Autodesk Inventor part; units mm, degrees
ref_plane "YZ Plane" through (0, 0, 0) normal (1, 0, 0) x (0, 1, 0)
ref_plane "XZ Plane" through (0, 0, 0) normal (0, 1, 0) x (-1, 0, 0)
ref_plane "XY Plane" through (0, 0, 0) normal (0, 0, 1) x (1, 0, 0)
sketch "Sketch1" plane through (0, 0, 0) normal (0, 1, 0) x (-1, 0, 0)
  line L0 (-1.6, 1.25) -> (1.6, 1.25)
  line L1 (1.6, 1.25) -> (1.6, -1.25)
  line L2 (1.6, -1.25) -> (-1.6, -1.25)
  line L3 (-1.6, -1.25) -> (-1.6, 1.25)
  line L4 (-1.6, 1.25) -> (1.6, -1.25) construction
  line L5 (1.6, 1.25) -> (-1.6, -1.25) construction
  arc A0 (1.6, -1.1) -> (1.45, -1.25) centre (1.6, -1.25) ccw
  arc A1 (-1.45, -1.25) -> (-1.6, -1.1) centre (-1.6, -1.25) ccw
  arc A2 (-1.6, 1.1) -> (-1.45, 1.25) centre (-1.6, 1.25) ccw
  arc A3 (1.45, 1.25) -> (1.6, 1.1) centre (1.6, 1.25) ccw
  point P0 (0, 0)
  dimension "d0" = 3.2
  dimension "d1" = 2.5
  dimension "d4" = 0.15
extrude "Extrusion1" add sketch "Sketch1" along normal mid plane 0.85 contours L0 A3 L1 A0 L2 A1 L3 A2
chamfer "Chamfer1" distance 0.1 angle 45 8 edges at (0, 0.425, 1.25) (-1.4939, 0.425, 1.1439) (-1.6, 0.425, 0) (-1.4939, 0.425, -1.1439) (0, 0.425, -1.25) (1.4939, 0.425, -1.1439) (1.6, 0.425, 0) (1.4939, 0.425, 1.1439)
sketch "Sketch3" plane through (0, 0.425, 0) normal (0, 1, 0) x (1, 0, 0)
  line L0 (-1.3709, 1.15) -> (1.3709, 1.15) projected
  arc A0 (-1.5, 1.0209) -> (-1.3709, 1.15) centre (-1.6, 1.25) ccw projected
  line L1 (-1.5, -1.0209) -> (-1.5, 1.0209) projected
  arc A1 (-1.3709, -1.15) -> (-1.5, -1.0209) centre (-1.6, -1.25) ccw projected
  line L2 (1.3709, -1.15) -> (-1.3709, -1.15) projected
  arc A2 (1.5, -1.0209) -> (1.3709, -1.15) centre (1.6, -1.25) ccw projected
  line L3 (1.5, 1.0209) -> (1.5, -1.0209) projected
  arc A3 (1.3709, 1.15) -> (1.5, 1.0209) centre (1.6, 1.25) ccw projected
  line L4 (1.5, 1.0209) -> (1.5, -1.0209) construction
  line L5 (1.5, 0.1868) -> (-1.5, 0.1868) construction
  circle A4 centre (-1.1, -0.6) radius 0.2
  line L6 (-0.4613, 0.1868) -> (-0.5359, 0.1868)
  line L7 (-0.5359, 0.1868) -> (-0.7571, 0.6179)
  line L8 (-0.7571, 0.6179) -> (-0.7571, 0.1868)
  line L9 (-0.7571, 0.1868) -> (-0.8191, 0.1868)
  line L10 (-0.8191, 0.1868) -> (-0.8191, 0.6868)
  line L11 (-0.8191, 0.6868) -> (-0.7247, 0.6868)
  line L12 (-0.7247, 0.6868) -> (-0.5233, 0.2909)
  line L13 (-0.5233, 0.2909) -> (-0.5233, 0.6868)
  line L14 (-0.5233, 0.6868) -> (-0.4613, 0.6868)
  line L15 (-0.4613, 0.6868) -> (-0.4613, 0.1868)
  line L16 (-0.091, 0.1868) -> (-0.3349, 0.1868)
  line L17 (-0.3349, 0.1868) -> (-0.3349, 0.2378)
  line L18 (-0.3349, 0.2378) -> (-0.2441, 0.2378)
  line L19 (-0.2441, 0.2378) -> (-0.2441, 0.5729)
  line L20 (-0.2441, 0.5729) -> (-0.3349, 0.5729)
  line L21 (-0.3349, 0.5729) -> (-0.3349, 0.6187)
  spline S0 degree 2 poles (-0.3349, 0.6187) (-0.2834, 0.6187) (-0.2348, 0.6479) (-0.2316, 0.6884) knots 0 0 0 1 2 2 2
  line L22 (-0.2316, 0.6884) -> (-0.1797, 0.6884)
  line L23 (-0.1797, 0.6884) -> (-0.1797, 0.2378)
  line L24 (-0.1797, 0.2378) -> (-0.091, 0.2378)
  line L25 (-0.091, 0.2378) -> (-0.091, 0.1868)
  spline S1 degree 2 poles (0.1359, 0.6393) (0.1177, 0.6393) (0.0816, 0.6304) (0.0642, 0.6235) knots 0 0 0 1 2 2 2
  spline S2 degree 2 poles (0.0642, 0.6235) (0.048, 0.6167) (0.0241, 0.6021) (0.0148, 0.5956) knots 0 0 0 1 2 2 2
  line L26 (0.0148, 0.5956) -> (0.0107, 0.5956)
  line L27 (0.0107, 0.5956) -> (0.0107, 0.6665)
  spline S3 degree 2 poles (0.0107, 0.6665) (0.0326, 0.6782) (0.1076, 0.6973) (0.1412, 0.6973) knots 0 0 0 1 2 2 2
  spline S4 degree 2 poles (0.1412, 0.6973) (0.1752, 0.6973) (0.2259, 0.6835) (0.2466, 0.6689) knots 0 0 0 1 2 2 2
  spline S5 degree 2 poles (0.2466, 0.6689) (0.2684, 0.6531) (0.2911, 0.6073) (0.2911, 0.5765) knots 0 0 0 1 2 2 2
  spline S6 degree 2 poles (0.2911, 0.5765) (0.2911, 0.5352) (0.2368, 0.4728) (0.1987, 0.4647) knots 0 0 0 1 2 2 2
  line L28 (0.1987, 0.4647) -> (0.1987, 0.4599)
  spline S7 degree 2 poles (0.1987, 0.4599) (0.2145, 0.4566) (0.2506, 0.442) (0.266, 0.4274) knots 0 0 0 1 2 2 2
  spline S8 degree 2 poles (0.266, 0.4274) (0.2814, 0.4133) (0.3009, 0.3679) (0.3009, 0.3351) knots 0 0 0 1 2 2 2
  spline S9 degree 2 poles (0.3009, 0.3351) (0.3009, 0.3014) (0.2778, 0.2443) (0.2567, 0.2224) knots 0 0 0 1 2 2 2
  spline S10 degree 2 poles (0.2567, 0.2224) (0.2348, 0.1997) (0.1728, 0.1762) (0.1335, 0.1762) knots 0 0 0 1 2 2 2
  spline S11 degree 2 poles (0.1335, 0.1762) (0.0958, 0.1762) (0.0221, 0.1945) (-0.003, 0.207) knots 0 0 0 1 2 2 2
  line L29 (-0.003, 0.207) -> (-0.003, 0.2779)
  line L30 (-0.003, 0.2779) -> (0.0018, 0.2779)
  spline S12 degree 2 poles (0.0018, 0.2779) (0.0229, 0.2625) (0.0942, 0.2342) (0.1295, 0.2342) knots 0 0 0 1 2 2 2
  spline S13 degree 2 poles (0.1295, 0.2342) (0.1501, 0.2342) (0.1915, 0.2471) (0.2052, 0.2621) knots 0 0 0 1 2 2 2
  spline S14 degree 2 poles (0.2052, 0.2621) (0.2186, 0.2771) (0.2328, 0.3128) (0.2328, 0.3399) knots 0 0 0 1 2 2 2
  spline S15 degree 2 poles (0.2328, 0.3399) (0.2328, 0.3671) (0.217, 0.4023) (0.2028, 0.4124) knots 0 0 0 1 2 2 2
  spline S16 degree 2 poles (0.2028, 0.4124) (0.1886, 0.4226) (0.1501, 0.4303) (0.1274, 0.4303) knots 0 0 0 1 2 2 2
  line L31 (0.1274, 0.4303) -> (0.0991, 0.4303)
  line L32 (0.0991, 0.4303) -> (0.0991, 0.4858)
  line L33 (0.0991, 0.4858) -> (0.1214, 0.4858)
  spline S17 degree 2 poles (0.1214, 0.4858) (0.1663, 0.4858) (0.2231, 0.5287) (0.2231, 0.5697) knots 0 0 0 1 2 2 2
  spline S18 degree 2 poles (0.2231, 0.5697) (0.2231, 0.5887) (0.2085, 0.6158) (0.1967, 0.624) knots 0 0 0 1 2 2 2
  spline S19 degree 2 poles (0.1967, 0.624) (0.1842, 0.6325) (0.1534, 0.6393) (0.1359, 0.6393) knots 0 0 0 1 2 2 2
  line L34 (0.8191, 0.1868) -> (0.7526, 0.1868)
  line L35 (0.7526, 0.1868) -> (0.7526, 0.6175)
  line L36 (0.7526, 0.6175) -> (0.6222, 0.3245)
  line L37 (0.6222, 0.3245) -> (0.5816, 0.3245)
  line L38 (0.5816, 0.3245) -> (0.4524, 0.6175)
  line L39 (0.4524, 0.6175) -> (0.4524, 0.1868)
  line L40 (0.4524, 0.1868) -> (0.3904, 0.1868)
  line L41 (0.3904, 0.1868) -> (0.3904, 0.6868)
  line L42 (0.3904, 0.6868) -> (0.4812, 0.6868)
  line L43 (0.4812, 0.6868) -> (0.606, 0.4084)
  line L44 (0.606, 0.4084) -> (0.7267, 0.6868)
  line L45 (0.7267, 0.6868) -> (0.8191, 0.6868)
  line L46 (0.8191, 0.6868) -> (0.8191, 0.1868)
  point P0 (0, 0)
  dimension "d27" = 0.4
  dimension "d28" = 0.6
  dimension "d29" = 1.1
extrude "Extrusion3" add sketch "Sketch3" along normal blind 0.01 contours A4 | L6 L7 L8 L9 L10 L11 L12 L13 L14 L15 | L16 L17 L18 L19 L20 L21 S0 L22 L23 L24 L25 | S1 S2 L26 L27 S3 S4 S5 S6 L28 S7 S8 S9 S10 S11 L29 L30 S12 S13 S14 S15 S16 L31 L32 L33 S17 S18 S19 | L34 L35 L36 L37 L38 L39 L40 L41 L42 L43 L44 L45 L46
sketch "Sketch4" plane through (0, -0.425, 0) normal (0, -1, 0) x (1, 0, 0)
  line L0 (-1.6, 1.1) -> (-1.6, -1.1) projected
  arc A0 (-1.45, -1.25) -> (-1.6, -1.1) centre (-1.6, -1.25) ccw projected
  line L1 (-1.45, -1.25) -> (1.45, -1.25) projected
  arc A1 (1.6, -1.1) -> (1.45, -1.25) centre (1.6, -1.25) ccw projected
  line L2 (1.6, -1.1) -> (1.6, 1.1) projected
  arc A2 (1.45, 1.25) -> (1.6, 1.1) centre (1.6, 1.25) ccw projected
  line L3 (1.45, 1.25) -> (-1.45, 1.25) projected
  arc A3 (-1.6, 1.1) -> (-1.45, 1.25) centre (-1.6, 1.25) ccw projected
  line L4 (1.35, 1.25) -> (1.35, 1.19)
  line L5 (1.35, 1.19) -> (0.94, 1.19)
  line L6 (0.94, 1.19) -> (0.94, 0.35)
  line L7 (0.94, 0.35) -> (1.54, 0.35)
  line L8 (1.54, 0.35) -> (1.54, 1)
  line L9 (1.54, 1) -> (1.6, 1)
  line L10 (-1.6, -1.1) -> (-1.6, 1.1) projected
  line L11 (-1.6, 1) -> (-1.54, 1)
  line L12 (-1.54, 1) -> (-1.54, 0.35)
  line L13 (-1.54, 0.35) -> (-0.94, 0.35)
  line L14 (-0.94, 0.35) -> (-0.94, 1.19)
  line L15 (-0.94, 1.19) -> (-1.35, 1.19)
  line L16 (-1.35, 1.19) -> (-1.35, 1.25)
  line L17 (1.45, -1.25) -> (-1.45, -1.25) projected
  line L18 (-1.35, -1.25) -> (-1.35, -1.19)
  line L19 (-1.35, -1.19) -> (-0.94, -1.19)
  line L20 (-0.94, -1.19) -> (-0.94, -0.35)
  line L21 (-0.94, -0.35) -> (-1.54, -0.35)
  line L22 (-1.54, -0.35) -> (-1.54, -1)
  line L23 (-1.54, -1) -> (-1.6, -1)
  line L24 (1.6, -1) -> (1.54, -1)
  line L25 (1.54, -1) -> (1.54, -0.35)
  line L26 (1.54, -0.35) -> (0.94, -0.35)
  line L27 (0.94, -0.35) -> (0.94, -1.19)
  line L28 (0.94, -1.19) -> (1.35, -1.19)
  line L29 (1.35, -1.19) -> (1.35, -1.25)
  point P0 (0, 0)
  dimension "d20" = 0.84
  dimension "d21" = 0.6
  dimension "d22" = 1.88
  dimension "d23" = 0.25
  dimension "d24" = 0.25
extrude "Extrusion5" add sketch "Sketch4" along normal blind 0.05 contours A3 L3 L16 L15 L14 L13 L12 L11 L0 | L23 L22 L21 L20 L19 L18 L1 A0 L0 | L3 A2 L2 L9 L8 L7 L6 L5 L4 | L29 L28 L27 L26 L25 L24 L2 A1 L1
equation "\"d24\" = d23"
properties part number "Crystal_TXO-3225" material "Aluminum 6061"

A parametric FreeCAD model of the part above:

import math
import FreeCAD as App
import Part
import Sketcher
Q = App.Units.Quantity


def edges_at(feature, points):
    """Names of the edges that pass closest to the given points."""
    edges = feature.Shape.Edges
    near = lambda p: min(range(len(edges)), key=lambda i: edges[i].distToShape(Part.Vertex(*p))[0])
    return sorted({f"Edge{near(p) + 1}" for p in points})

doc = App.newDocument("Part")
body = doc.addObject("PartDesign::Body", "Body")

# Sketch on XZ plane
sketch1 = doc.addObject("Sketcher::SketchObject", "Sketch")
body.addObject(sketch1)
sketch1.AttachmentSupport = (doc.XZ_Plane, [""])
sketch1.MapMode = "FlatFace"
sketch1.addGeometry(Part.LineSegment(App.Vector(-1.45, 1.25, 0), App.Vector(1.45, 1.25, 0)), False)
sketch1.addGeometry(Part.ArcOfCircle(Part.Circle(App.Vector(1.6, 1.25, 0), App.Vector(0, 0, 1), 0.15), math.radians(180), math.radians(270)), False)
sketch1.addGeometry(Part.LineSegment(App.Vector(1.6, 1.1, 0), App.Vector(1.6, -1.1, 0)), False)
sketch1.addGeometry(Part.ArcOfCircle(Part.Circle(App.Vector(1.6, -1.25, 0), App.Vector(0, 0, 1), 0.15), math.radians(90), math.radians(180)), False)
sketch1.addGeometry(Part.LineSegment(App.Vector(1.45, -1.25, 0), App.Vector(-1.45, -1.25, 0)), False)
sketch1.addGeometry(Part.ArcOfCircle(Part.Circle(App.Vector(-1.6, -1.25, 0), App.Vector(0, 0, 1), 0.15), math.radians(0), math.radians(90)), False)
sketch1.addGeometry(Part.LineSegment(App.Vector(-1.6, -1.1, 0), App.Vector(-1.6, 1.1, 0)), False)
sketch1.addGeometry(Part.ArcOfCircle(Part.Circle(App.Vector(-1.6, 1.25, 0), App.Vector(0, 0, 1), 0.15), math.radians(-90), math.radians(0)), False)
sketch1.addConstraint(Sketcher.Constraint("Coincident", 0, 2, 1, 1))
sketch1.addConstraint(Sketcher.Constraint("Coincident", 1, 2, 2, 1))
sketch1.addConstraint(Sketcher.Constraint("Coincident", 2, 2, 3, 1))
sketch1.addConstraint(Sketcher.Constraint("Coincident", 3, 2, 4, 1))
sketch1.addConstraint(Sketcher.Constraint("Coincident", 4, 2, 5, 1))
sketch1.addConstraint(Sketcher.Constraint("Coincident", 5, 2, 6, 1))
sketch1.addConstraint(Sketcher.Constraint("Coincident", 6, 2, 7, 1))
sketch1.addConstraint(Sketcher.Constraint("Coincident", 7, 2, 0, 1))
sketch1.addConstraint(Sketcher.Constraint("Horizontal", 0))
sketch1.addConstraint(Sketcher.Constraint("Vertical", 2))
sketch1.addConstraint(Sketcher.Constraint("Horizontal", 4))
sketch1.addConstraint(Sketcher.Constraint("Vertical", 6))
sketch1.addConstraint(Sketcher.Constraint("Equal", 1, 3))
sketch1.addConstraint(Sketcher.Constraint("Equal", 3, 5))
sketch1.addConstraint(Sketcher.Constraint("Equal", 5, 7))
sketch1.addConstraint(Sketcher.Constraint("Symmetric", 1, 3, 5, 3, -1, 1))
sketch1.addConstraint(Sketcher.Constraint("Symmetric", 3, 3, 7, 3, -1, 1))
sketch1.addConstraint(Sketcher.Constraint("Symmetric", 3, 3, 5, 3, -2))
sketch1.addConstraint(Sketcher.Constraint("Horizontal", 7, 3, 0, 2))
sketch1.addConstraint(Sketcher.Constraint("Horizontal", 5, 3, 3, 2))
sketch1.addConstraint(Sketcher.Constraint("Vertical", 3, 3, 1, 2))
sketch1.addConstraint(Sketcher.Constraint("Vertical", 7, 3, 5, 2))
sketch1.addConstraint(Sketcher.Constraint("Radius", 1, 0.15))
sketch1.addConstraint(Sketcher.Constraint("DistanceY", 3, 3, 1, 3, 2.5))
sketch1.addConstraint(Sketcher.Constraint("DistanceX", 5, 3, 3, 3, 3.2))
pad1 = doc.addObject("PartDesign::Pad", "Pad")
body.addObject(pad1)
pad1.Profile = sketch1
pad1.Length = 0.85
pad1.Midplane = True
doc.recompute()

chamfer = doc.addObject("PartDesign::Chamfer", "Chamfer")
body.addObject(chamfer)
chamfer.Base = (pad1, edges_at(pad1, [
    (0, 0.425, 1.25),
    (-1.494, 0.425, 1.144),
    (-1.6, 0.425, 0),
    (-1.494, 0.425, -1.144),
    (0, 0.425, -1.25),
    (1.494, 0.425, -1.144),
    (1.6, 0.425, 0),
    (1.494, 0.425, 1.144),
]))
chamfer.Size = 0.1

# Sketch on XZ plane
sketch2 = doc.addObject("Sketcher::SketchObject", "Sketch001")
body.addObject(sketch2)
sketch2.AttachmentSupport = (doc.XZ_Plane, [""])
sketch2.MapMode = "FlatFace"
sketch2.AttachmentOffset = App.Placement(App.Vector(0, 0, -0.425), App.Rotation())
sketch2.addGeometry(Part.Circle(App.Vector(-1.1, 0.6, 0), App.Vector(0, 0, 1), 0.2), False)
sketch2.addGeometry(Part.LineSegment(App.Vector(-0.5359, -0.1868, 0), App.Vector(-0.4613, -0.1868, 0)), False)
sketch2.addGeometry(Part.LineSegment(App.Vector(-0.4613, -0.1868, 0), App.Vector(-0.4613, -0.6868, 0)), False)
sketch2.addGeometry(Part.LineSegment(App.Vector(-0.4613, -0.6868, 0), App.Vector(-0.5233, -0.6868, 0)), False)
sketch2.addGeometry(Part.LineSegment(App.Vector(-0.5233, -0.6868, 0), App.Vector(-0.5233, -0.2909, 0)), False)
sketch2.addGeometry(Part.LineSegment(App.Vector(-0.5233, -0.2909, 0), App.Vector(-0.7247, -0.6868, 0)), False)
sketch2.addGeometry(Part.LineSegment(App.Vector(-0.7247, -0.6868, 0), App.Vector(-0.8191, -0.6868, 0)), False)
sketch2.addGeometry(Part.LineSegment(App.Vector(-0.8191, -0.6868, 0), App.Vector(-0.8191, -0.1868, 0)), False)
sketch2.addGeometry(Part.LineSegment(App.Vector(-0.8191, -0.1868, 0), App.Vector(-0.7571, -0.1868, 0)), False)
sketch2.addGeometry(Part.LineSegment(App.Vector(-0.7571, -0.1868, 0), App.Vector(-0.7571, -0.6179, 0)), False)
sketch2.addGeometry(Part.LineSegment(App.Vector(-0.7571, -0.6179, 0), App.Vector(-0.5359, -0.1868, 0)), False)
sketch2.addGeometry(Part.LineSegment(App.Vector(-0.3349, -0.1868, 0), App.Vector(-0.091, -0.1868, 0)), False)
sketch2.addGeometry(Part.LineSegment(App.Vector(-0.091, -0.1868, 0), App.Vector(-0.091, -0.2378, 0)), False)
sketch2.addGeometry(Part.LineSegment(App.Vector(-0.091, -0.2378, 0), App.Vector(-0.1797, -0.2378, 0)), False)
sketch2.addGeometry(Part.LineSegment(App.Vector(-0.1797, -0.2378, 0), App.Vector(-0.1797, -0.6884, 0)), False)
sketch2.addGeometry(Part.LineSegment(App.Vector(-0.1797, -0.6884, 0), App.Vector(-0.2316, -0.6884, 0)), False)
sketch2.addGeometry(Part.BSplineCurve([App.Vector(-0.3349, -0.6187, 0), App.Vector(-0.2834, -0.6187, 0), App.Vector(-0.2348, -0.6479, 0), App.Vector(-0.2316, -0.6884, 0)], [3, 1, 3], [0, 1, 2], False, 2, [1, 1, 1, 1], False), False)
sketch2.addGeometry(Part.LineSegment(App.Vector(-0.3349, -0.6187, 0), App.Vector(-0.3349, -0.5729, 0)), False)
sketch2.addGeometry(Part.LineSegment(App.Vector(-0.3349, -0.5729, 0), App.Vector(-0.2441, -0.5729, 0)), False)
sketch2.addGeometry(Part.LineSegment(App.Vector(-0.2441, -0.5729, 0), App.Vector(-0.2441, -0.2378, 0)), False)
sketch2.addGeometry(Part.LineSegment(App.Vector(-0.2441, -0.2378, 0), App.Vector(-0.3349, -0.2378, 0)), False)
sketch2.addGeometry(Part.LineSegment(App.Vector(-0.3349, -0.2378, 0), App.Vector(-0.3349, -0.1868, 0)), False)
sketch2.addGeometry(Part.BSplineCurve([App.Vector(0.1359, -0.6393, 0), App.Vector(0.1177, -0.6393, 0), App.Vector(0.0816, -0.6304, 0), App.Vector(0.0642, -0.6235, 0)], [3, 1, 3], [0, 1, 2], False, 2, [1, 1, 1, 1], False), False)
sketch2.addGeometry(Part.BSplineCurve([App.Vector(0.1967, -0.624, 0), App.Vector(0.1842, -0.6325, 0), App.Vector(0.1534, -0.6393, 0), App.Vector(0.1359, -0.6393, 0)], [3, 1, 3], [0, 1, 2], False, 2, [1, 1, 1, 1], False), False)
sketch2.addGeometry(Part.BSplineCurve([App.Vector(0.2231, -0.5697, 0), App.Vector(0.2231, -0.5887, 0), App.Vector(0.2085, -0.6158, 0), App.Vector(0.1967, -0.624, 0)], [3, 1, 3], [0, 1, 2], False, 2, [1, 1, 1, 1], False), False)
sketch2.addGeometry(Part.BSplineCurve([App.Vector(0.1214, -0.4858, 0), App.Vector(0.1663, -0.4858, 0), App.Vector(0.2231, -0.5287, 0), App.Vector(0.2231, -0.5697, 0)], [3, 1, 3], [0, 1, 2], False, 2, [1, 1, 1, 1], False), False)
sketch2.addGeometry(Part.LineSegment(App.Vector(0.1214, -0.4858, 0), App.Vector(0.0991, -0.4858, 0)), False)
sketch2.addGeometry(Part.LineSegment(App.Vector(0.0991, -0.4858, 0), App.Vector(0.0991, -0.4303, 0)), False)
sketch2.addGeometry(Part.LineSegment(App.Vector(0.0991, -0.4303, 0), App.Vector(0.1274, -0.4303, 0)), False)
sketch2.addGeometry(Part.BSplineCurve([App.Vector(0.2028, -0.4124, 0), App.Vector(0.1886, -0.4226, 0), App.Vector(0.1501, -0.4303, 0), App.Vector(0.1274, -0.4303, 0)], [3, 1, 3], [0, 1, 2], False, 2, [1, 1, 1, 1], False), False)
sketch2.addGeometry(Part.BSplineCurve([App.Vector(0.2328, -0.3399, 0), App.Vector(0.2328, -0.3671, 0), App.Vector(0.217, -0.4023, 0), App.Vector(0.2028, -0.4124, 0)], [3, 1, 3], [0, 1, 2], False, 2, [1, 1, 1, 1], False), False)
sketch2.addGeometry(Part.BSplineCurve([App.Vector(0.2052, -0.2621, 0), App.Vector(0.2186, -0.2771, 0), App.Vector(0.2328, -0.3128, 0), App.Vector(0.2328, -0.3399, 0)], [3, 1, 3], [0, 1, 2], False, 2, [1, 1, 1, 1], False), False)
sketch2.addGeometry(Part.BSplineCurve([App.Vector(0.1295, -0.2342, 0), App.Vector(0.1501, -0.2342, 0), App.Vector(0.1915, -0.2471, 0), App.Vector(0.2052, -0.2621, 0)], [3, 1, 3], [0, 1, 2], False, 2, [1, 1, 1, 1], False), False)
sketch2.addGeometry(Part.BSplineCurve([App.Vector(0.0018, -0.2779, 0), App.Vector(0.0229, -0.2625, 0), App.Vector(0.0942, -0.2342, 0), App.Vector(0.1295, -0.2342, 0)], [3, 1, 3], [0, 1, 2], False, 2, [1, 1, 1, 1], False), False)
sketch2.addGeometry(Part.LineSegment(App.Vector(0.0018, -0.2779, 0), App.Vector(-0.003, -0.2779, 0)), False)
sketch2.addGeometry(Part.LineSegment(App.Vector(-0.003, -0.2779, 0), App.Vector(-0.003, -0.207, 0)), False)
sketch2.addGeometry(Part.BSplineCurve([App.Vector(0.1335, -0.1762, 0), App.Vector(0.0958, -0.1762, 0), App.Vector(0.0221, -0.1945, 0), App.Vector(-0.003, -0.207, 0)], [3, 1, 3], [0, 1, 2], False, 2, [1, 1, 1, 1], False), False)
sketch2.addGeometry(Part.BSplineCurve([App.Vector(0.2567, -0.2224, 0), App.Vector(0.2348, -0.1997, 0), App.Vector(0.1728, -0.1762, 0), App.Vector(0.1335, -0.1762, 0)], [3, 1, 3], [0, 1, 2], False, 2, [1, 1, 1, 1], False), False)
sketch2.addGeometry(Part.BSplineCurve([App.Vector(0.3009, -0.3351, 0), App.Vector(0.3009, -0.3014, 0), App.Vector(0.2778, -0.2443, 0), App.Vector(0.2567, -0.2224, 0)], [3, 1, 3], [0, 1, 2], False, 2, [1, 1, 1, 1], False), False)
sketch2.addGeometry(Part.BSplineCurve([App.Vector(0.266, -0.4274, 0), App.Vector(0.2814, -0.4133, 0), App.Vector(0.3009, -0.3679, 0), App.Vector(0.3009, -0.3351, 0)], [3, 1, 3], [0, 1, 2], False, 2, [1, 1, 1, 1], False), False)
sketch2.addGeometry(Part.BSplineCurve([App.Vector(0.1987, -0.4599, 0), App.Vector(0.2145, -0.4566, 0), App.Vector(0.2506, -0.442, 0), App.Vector(0.266, -0.4274, 0)], [3, 1, 3], [0, 1, 2], False, 2, [1, 1, 1, 1], False), False)
sketch2.addGeometry(Part.LineSegment(App.Vector(0.1987, -0.4599, 0), App.Vector(0.1987, -0.4647, 0)), False)
sketch2.addGeometry(Part.BSplineCurve([App.Vector(0.2911, -0.5765, 0), App.Vector(0.2911, -0.5352, 0), App.Vector(0.2368, -0.4728, 0), App.Vector(0.1987, -0.4647, 0)], [3, 1, 3], [0, 1, 2], False, 2, [1, 1, 1, 1], False), False)
sketch2.addGeometry(Part.BSplineCurve([App.Vector(0.2466, -0.6689, 0), App.Vector(0.2684, -0.6531, 0), App.Vector(0.2911, -0.6073, 0), App.Vector(0.2911, -0.5765, 0)], [3, 1, 3], [0, 1, 2], False, 2, [1, 1, 1, 1], False), False)
sketch2.addGeometry(Part.BSplineCurve([App.Vector(0.1412, -0.6973, 0), App.Vector(0.1752, -0.6973, 0), App.Vector(0.2259, -0.6835, 0), App.Vector(0.2466, -0.6689, 0)], [3, 1, 3], [0, 1, 2], False, 2, [1, 1, 1, 1], False), False)
sketch2.addGeometry(Part.BSplineCurve([App.Vector(0.0107, -0.6665, 0), App.Vector(0.0326, -0.6782, 0), App.Vector(0.1076, -0.6973, 0), App.Vector(0.1412, -0.6973, 0)], [3, 1, 3], [0, 1, 2], False, 2, [1, 1, 1, 1], False), False)
sketch2.addGeometry(Part.LineSegment(App.Vector(0.0107, -0.6665, 0), App.Vector(0.0107, -0.5956, 0)), False)
sketch2.addGeometry(Part.LineSegment(App.Vector(0.0107, -0.5956, 0), App.Vector(0.0148, -0.5956, 0)), False)
sketch2.addGeometry(Part.BSplineCurve([App.Vector(0.0642, -0.6235, 0), App.Vector(0.048, -0.6167, 0), App.Vector(0.0241, -0.6021, 0), App.Vector(0.0148, -0.5956, 0)], [3, 1, 3], [0, 1, 2], False, 2, [1, 1, 1, 1], False), False)
sketch2.addGeometry(Part.LineSegment(App.Vector(0.7526, -0.1868, 0), App.Vector(0.8191, -0.1868, 0)), False)
sketch2.addGeometry(Part.LineSegment(App.Vector(0.8191, -0.1868, 0), App.Vector(0.8191, -0.6868, 0)), False)
sketch2.addGeometry(Part.LineSegment(App.Vector(0.8191, -0.6868, 0), App.Vector(0.7267, -0.6868, 0)), False)
sketch2.addGeometry(Part.LineSegment(App.Vector(0.7267, -0.6868, 0), App.Vector(0.606, -0.4084, 0)), False)
sketch2.addGeometry(Part.LineSegment(App.Vector(0.606, -0.4084, 0), App.Vector(0.4812, -0.6868, 0)), False)
sketch2.addGeometry(Part.LineSegment(App.Vector(0.4812, -0.6868, 0), App.Vector(0.3904, -0.6868, 0)), False)
sketch2.addGeometry(Part.LineSegment(App.Vector(0.3904, -0.6868, 0), App.Vector(0.3904, -0.1868, 0)), False)
sketch2.addGeometry(Part.LineSegment(App.Vector(0.3904, -0.1868, 0), App.Vector(0.4524, -0.1868, 0)), False)
sketch2.addGeometry(Part.LineSegment(App.Vector(0.4524, -0.1868, 0), App.Vector(0.4524, -0.6175, 0)), False)
sketch2.addGeometry(Part.LineSegment(App.Vector(0.4524, -0.6175, 0), App.Vector(0.5816, -0.3245, 0)), False)
sketch2.addGeometry(Part.LineSegment(App.Vector(0.5816, -0.3245, 0), App.Vector(0.6222, -0.3245, 0)), False)
sketch2.addGeometry(Part.LineSegment(App.Vector(0.6222, -0.3245, 0), App.Vector(0.7526, -0.6175, 0)), False)
sketch2.addGeometry(Part.LineSegment(App.Vector(0.7526, -0.6175, 0), App.Vector(0.7526, -0.1868, 0)), False)
sketch2.addConstraint(Sketcher.Constraint("Block", 16))
sketch2.addConstraint(Sketcher.Constraint("Block", 22))
sketch2.addConstraint(Sketcher.Constraint("Block", 23))
sketch2.addConstraint(Sketcher.Constraint("Block", 24))
sketch2.addConstraint(Sketcher.Constraint("Block", 25))
sketch2.addConstraint(Sketcher.Constraint("Block", 29))
sketch2.addConstraint(Sketcher.Constraint("Block", 30))
sketch2.addConstraint(Sketcher.Constraint("Block", 31))
sketch2.addConstraint(Sketcher.Constraint("Block", 32))
sketch2.addConstraint(Sketcher.Constraint("Block", 33))
sketch2.addConstraint(Sketcher.Constraint("Block", 36))
sketch2.addConstraint(Sketcher.Constraint("Block", 37))
sketch2.addConstraint(Sketcher.Constraint("Block", 38))
sketch2.addConstraint(Sketcher.Constraint("Block", 39))
sketch2.addConstraint(Sketcher.Constraint("Block", 40))
sketch2.addConstraint(Sketcher.Constraint("Block", 42))
sketch2.addConstraint(Sketcher.Constraint("Block", 43))
sketch2.addConstraint(Sketcher.Constraint("Block", 44))
sketch2.addConstraint(Sketcher.Constraint("Block", 45))
sketch2.addConstraint(Sketcher.Constraint("Block", 48))
sketch2.addConstraint(Sketcher.Constraint("Coincident", 1, 2, 2, 1))
sketch2.addConstraint(Sketcher.Constraint("Coincident", 2, 2, 3, 1))
sketch2.addConstraint(Sketcher.Constraint("Coincident", 3, 2, 4, 1))
sketch2.addConstraint(Sketcher.Constraint("Coincident", 4, 2, 5, 1))
sketch2.addConstraint(Sketcher.Constraint("Coincident", 5, 2, 6, 1))
sketch2.addConstraint(Sketcher.Constraint("Coincident", 6, 2, 7, 1))
sketch2.addConstraint(Sketcher.Constraint("Coincident", 7, 2, 8, 1))
sketch2.addConstraint(Sketcher.Constraint("Coincident", 8, 2, 9, 1))
sketch2.addConstraint(Sketcher.Constraint("Coincident", 9, 2, 10, 1))
sketch2.addConstraint(Sketcher.Constraint("Coincident", 10, 2, 1, 1))
sketch2.addConstraint(Sketcher.Constraint("Coincident", 11, 2, 12, 1))
sketch2.addConstraint(Sketcher.Constraint("Coincident", 12, 2, 13, 1))
sketch2.addConstraint(Sketcher.Constraint("Coincident", 13, 2, 14, 1))
sketch2.addConstraint(Sketcher.Constraint("Coincident", 14, 2, 15, 1))
sketch2.addConstraint(Sketcher.Constraint("Coincident", 15, 2, 16, 2))
sketch2.addConstraint(Sketcher.Constraint("Coincident", 16, 1, 17, 1))
sketch2.addConstraint(Sketcher.Constraint("Coincident", 17, 2, 18, 1))
sketch2.addConstraint(Sketcher.Constraint("Coincident", 18, 2, 19, 1))
sketch2.addConstraint(Sketcher.Constraint("Coincident", 19, 2, 20, 1))
sketch2.addConstraint(Sketcher.Constraint("Coincident", 20, 2, 21, 1))
sketch2.addConstraint(Sketcher.Constraint("Coincident", 21, 2, 11, 1))
sketch2.addConstraint(Sketcher.Constraint("Coincident", 25, 1, 26, 1))
sketch2.addConstraint(Sketcher.Constraint("Coincident", 26, 2, 27, 1))
sketch2.addConstraint(Sketcher.Constraint("Coincident", 27, 2, 28, 1))
sketch2.addConstraint(Sketcher.Constraint("Coincident", 28, 2, 29, 2))
sketch2.addConstraint(Sketcher.Constraint("Coincident", 33, 1, 34, 1))
sketch2.addConstraint(Sketcher.Constraint("Coincident", 34, 2, 35, 1))
sketch2.addConstraint(Sketcher.Constraint("Coincident", 35, 2, 36, 2))
sketch2.addConstraint(Sketcher.Constraint("Coincident", 40, 1, 41, 1))
sketch2.addConstraint(Sketcher.Constraint("Coincident", 41, 2, 42, 2))
sketch2.addConstraint(Sketcher.Constraint("Coincident", 45, 1, 46, 1))
sketch2.addConstraint(Sketcher.Constraint("Coincident", 46, 2, 47, 1))
sketch2.addConstraint(Sketcher.Constraint("Coincident", 47, 2, 48, 2))
sketch2.addConstraint(Sketcher.Constraint("Coincident", 49, 2, 50, 1))
sketch2.addConstraint(Sketcher.Constraint("Coincident", 50, 2, 51, 1))
sketch2.addConstraint(Sketcher.Constraint("Coincident", 51, 2, 52, 1))
sketch2.addConstraint(Sketcher.Constraint("Coincident", 52, 2, 53, 1))
sketch2.addConstraint(Sketcher.Constraint("Coincident", 53, 2, 54, 1))
sketch2.addConstraint(Sketcher.Constraint("Coincident", 54, 2, 55, 1))
sketch2.addConstraint(Sketcher.Constraint("Coincident", 55, 2, 56, 1))
sketch2.addConstraint(Sketcher.Constraint("Coincident", 56, 2, 57, 1))
sketch2.addConstraint(Sketcher.Constraint("Coincident", 57, 2, 58, 1))
sketch2.addConstraint(Sketcher.Constraint("Coincident", 58, 2, 59, 1))
sketch2.addConstraint(Sketcher.Constraint("Coincident", 59, 2, 60, 1))
sketch2.addConstraint(Sketcher.Constraint("Coincident", 60, 2, 61, 1))
sketch2.addConstraint(Sketcher.Constraint("Coincident", 61, 2, 49, 1))
sketch2.addConstraint(Sketcher.Constraint("Horizontal", 1))
sketch2.addConstraint(Sketcher.Constraint("Vertical", 2))
sketch2.addConstraint(Sketcher.Constraint("Horizontal", 3))
sketch2.addConstraint(Sketcher.Constraint("Vertical", 4))
sketch2.addConstraint(Sketcher.Constraint("Horizontal", 6))
sketch2.addConstraint(Sketcher.Constraint("Vertical", 7))
sketch2.addConstraint(Sketcher.Constraint("Horizontal", 8))
sketch2.addConstraint(Sketcher.Constraint("Vertical", 9))
sketch2.addConstraint(Sketcher.Constraint("Horizontal", 11))
sketch2.addConstraint(Sketcher.Constraint("Vertical", 12))
sketch2.addConstraint(Sketcher.Constraint("Horizontal", 13))
sketch2.addConstraint(Sketcher.Constraint("Vertical", 14))
sketch2.addConstraint(Sketcher.Constraint("Horizontal", 15))
sketch2.addConstraint(Sketcher.Constraint("Vertical", 17))
sketch2.addConstraint(Sketcher.Constraint("Horizontal", 18))
sketch2.addConstraint(Sketcher.Constraint("Vertical", 19))
sketch2.addConstraint(Sketcher.Constraint("Horizontal", 20))
sketch2.addConstraint(Sketcher.Constraint("Vertical", 21))
sketch2.addConstraint(Sketcher.Constraint("Horizontal", 26))
sketch2.addConstraint(Sketcher.Constraint("Vertical", 27))
sketch2.addConstraint(Sketcher.Constraint("Horizontal", 28))
sketch2.addConstraint(Sketcher.Constraint("Horizontal", 34))
sketch2.addConstraint(Sketcher.Constraint("Vertical", 35))
sketch2.addConstraint(Sketcher.Constraint("Vertical", 46))
sketch2.addConstraint(Sketcher.Constraint("Horizontal", 47))
sketch2.addConstraint(Sketcher.Constraint("Horizontal", 49))
sketch2.addConstraint(Sketcher.Constraint("Vertical", 50))
sketch2.addConstraint(Sketcher.Constraint("Horizontal", 51))
sketch2.addConstraint(Sketcher.Constraint("Horizontal", 54))
sketch2.addConstraint(Sketcher.Constraint("Vertical", 55))
sketch2.addConstraint(Sketcher.Constraint("Horizontal", 56))
sketch2.addConstraint(Sketcher.Constraint("Vertical", 57))
sketch2.addConstraint(Sketcher.Constraint("Horizontal", 59))
sketch2.addConstraint(Sketcher.Constraint("Vertical", 61))
sketch2.addConstraint(Sketcher.Constraint("Symmetric", 7, 2, 49, 2, -2))
sketch2.addConstraint(Sketcher.Constraint("Horizontal", 3, 2, 5, 2))
sketch2.addConstraint(Sketcher.Constraint("Horizontal", 1, 2, 7, 2))
sketch2.addConstraint(Sketcher.Constraint("Horizontal", 10, 2, 11, 2))
sketch2.addConstraint(Sketcher.Constraint("Horizontal", 13, 2, 19, 2))
sketch2.addConstraint(Sketcher.Constraint("Horizontal", 6, 2, 50, 2))
sketch2.addConstraint(Sketcher.Constraint("Horizontal", 51, 2, 53, 2))
sketch2.addConstraint(Sketcher.Constraint("Horizontal", 49, 2, 55, 2))
sketch2.addConstraint(Sketcher.Constraint("Horizontal", 57, 2, 60, 2))
sketch2.addConstraint(Sketcher.Constraint("Vertical", 17, 2, 20, 2))
sketch2.addConstraint(Sketcher.Constraint("Equal", 3, 8))
sketch2.addConstraint(Sketcher.Constraint("Equal", 20, 54))
sketch2.addConstraint(Sketcher.Constraint("Equal", 8, 56))
sketch2.addConstraint(Sketcher.Constraint("Diameter", 0, 0.4))
sketch2.addConstraint(Sketcher.Constraint("DistanceX", 0, 3, -1, 1, 1.1))
sketch2.addConstraint(Sketcher.Constraint("DistanceY", -1, 1, 0, 3, 0.6))
sketch2.addConstraint(Sketcher.Constraint("DistanceY", 2, 2, 2, 1, 0.5))
sketch2.addConstraint(Sketcher.Constraint("Angle", 52, Q("113.439 deg")))
sketch2.addConstraint(Sketcher.Constraint("DistanceX", 3, 2, 3, 1, 0.062))
sketch2.addConstraint(Sketcher.Constraint("DistanceX", 11, 1, 11, 2, 0.244))
sketch2.addConstraint(Sketcher.Constraint("DistanceX", 15, 2, 15, 1, 0.052))
sketch2.addConstraint(Sketcher.Constraint("DistanceY", 4, 1, 4, 2, 0.396))
sketch2.addConstraint(Sketcher.Constraint("DistanceY", 9, 2, 9, 1, 0.431))
sketch2.addConstraint(Sketcher.Constraint("DistanceY", 12, 2, 12, 1, 0.051))
sketch2.addConstraint(Sketcher.Constraint("DistanceY", 19, 1, 19, 2, 0.335))
sketch2.addConstraint(Sketcher.Constraint("DistanceX", 12, 2, 26, 2, 0.19))
sketch2.addConstraint(Sketcher.Constraint("DistanceY", 34, 2, 12, 2, 0.04))
sketch2.addConstraint(Sketcher.Constraint("DistanceX", 27, 2, 49, 2, 0.72))
sketch2.addConstraint(Sketcher.Constraint("Distance", 53, 0.305))
sketch2.addConstraint(Sketcher.Constraint("DistanceX", 1, 1, 1, 2, 0.0746))
sketch2.addConstraint(Sketcher.Constraint("DistanceX", 6, 2, 6, 1, 0.0944))
sketch2.addConstraint(Sketcher.Constraint("DistanceX", 18, 1, 18, 2, 0.0908))
sketch2.addConstraint(Sketcher.Constraint("DistanceX", 49, 1, 49, 2, 0.0665))
sketch2.addConstraint(Sketcher.Constraint("DistanceX", 51, 2, 51, 1, 0.0924))
sketch2.addConstraint(Sketcher.Constraint("DistanceX", 59, 1, 59, 2, 0.0406))
sketch2.addConstraint(Sketcher.Constraint("DistanceY", 57, 2, 57, 1, 0.4307))
sketch2.addConstraint(Sketcher.Constraint("DistanceX", 10, 2, -1, 1, 0.536))
sketch2.addConstraint(Sketcher.Constraint("DistanceX", -1, 1, 52, 2, 0.606))
sketch2.addConstraint(Sketcher.Constraint("DistanceY", 52, 2, 58, 2, 0.084))
sketch2.addConstraint(Sketcher.Constraint("DistanceX", 59, 2, 49, 2, 0.197))
pad2 = doc.addObject("PartDesign::Pad", "Pad001")
body.addObject(pad2)
pad2.Profile = sketch2
pad2.Length = 0.01
pad2.Reversed = True

# Sketch on XZ plane
sketch3 = doc.addObject("Sketcher::SketchObject", "Sketch002")
body.addObject(sketch3)
sketch3.AttachmentSupport = (doc.XZ_Plane, [""])
sketch3.MapMode = "FlatFace"
sketch3.AttachmentOffset = App.Placement(App.Vector(0, 0, 0.425), App.Rotation())
sketch3.addGeometry(Part.ArcOfCircle(Part.Circle(App.Vector(-1.6, 1.25, 0), App.Vector(0, 0, 1), 0.15), math.radians(-90), math.radians(0)), False)
sketch3.addGeometry(Part.LineSegment(App.Vector(-1.6, 1.1, 0), App.Vector(-1.6, 1, 0)), False)
sketch3.addGeometry(Part.LineSegment(App.Vector(-1.6, 1, 0), App.Vector(-1.54, 1, 0)), False)
sketch3.addGeometry(Part.LineSegment(App.Vector(-1.54, 1, 0), App.Vector(-1.54, 0.35, 0)), False)
sketch3.addGeometry(Part.LineSegment(App.Vector(-1.54, 0.35, 0), App.Vector(-0.94, 0.35, 0)), False)
sketch3.addGeometry(Part.LineSegment(App.Vector(-0.94, 0.35, 0), App.Vector(-0.94, 1.19, 0)), False)
sketch3.addGeometry(Part.LineSegment(App.Vector(-0.94, 1.19, 0), App.Vector(-1.35, 1.19, 0)), False)
sketch3.addGeometry(Part.LineSegment(App.Vector(-1.35, 1.19, 0), App.Vector(-1.35, 1.25, 0)), False)
sketch3.addGeometry(Part.LineSegment(App.Vector(-1.35, 1.25, 0), App.Vector(-1.45, 1.25, 0)), False)
sketch3.addGeometry(Part.LineSegment(App.Vector(-1.54, -1, 0), App.Vector(-1.6, -1, 0)), False)
sketch3.addGeometry(Part.LineSegment(App.Vector(-1.6, -1, 0), App.Vector(-1.6, -1.1, 0)), False)
sketch3.addGeometry(Part.ArcOfCircle(Part.Circle(App.Vector(-1.6, -1.25, 0), App.Vector(0, 0, 1), 0.15), math.radians(0), math.radians(90)), False)
sketch3.addGeometry(Part.LineSegment(App.Vector(-1.45, -1.25, 0), App.Vector(-1.35, -1.25, 0)), False)
sketch3.addGeometry(Part.LineSegment(App.Vector(-1.35, -1.25, 0), App.Vector(-1.35, -1.19, 0)), False)
sketch3.addGeometry(Part.LineSegment(App.Vector(-1.35, -1.19, 0), App.Vector(-0.94, -1.19, 0)), False)
sketch3.addGeometry(Part.LineSegment(App.Vector(-0.94, -1.19, 0), App.Vector(-0.94, -0.35, 0)), False)
sketch3.addGeometry(Part.LineSegment(App.Vector(-0.94, -0.35, 0), App.Vector(-1.54, -0.35, 0)), False)
sketch3.addGeometry(Part.LineSegment(App.Vector(-1.54, -0.35, 0), App.Vector(-1.54, -1, 0)), False)
sketch3.addGeometry(Part.LineSegment(App.Vector(1.45, 1.25, 0), App.Vector(1.35, 1.25, 0)), False)
sketch3.addGeometry(Part.LineSegment(App.Vector(1.35, 1.25, 0), App.Vector(1.35, 1.19, 0)), False)
sketch3.addGeometry(Part.LineSegment(App.Vector(1.35, 1.19, 0), App.Vector(0.94, 1.19, 0)), False)
sketch3.addGeometry(Part.LineSegment(App.Vector(0.94, 1.19, 0), App.Vector(0.94, 0.35, 0)), False)
sketch3.addGeometry(Part.LineSegment(App.Vector(0.94, 0.35, 0), App.Vector(1.54, 0.35, 0)), False)
sketch3.addGeometry(Part.LineSegment(App.Vector(1.54, 0.35, 0), App.Vector(1.54, 1, 0)), False)
sketch3.addGeometry(Part.LineSegment(App.Vector(1.54, 1, 0), App.Vector(1.6, 1, 0)), False)
sketch3.addGeometry(Part.LineSegment(App.Vector(1.6, 1, 0), App.Vector(1.6, 1.1, 0)), False)
sketch3.addGeometry(Part.ArcOfCircle(Part.Circle(App.Vector(1.6, 1.25, 0), App.Vector(0, 0, 1), 0.15), math.radians(180), math.radians(270)), False)
sketch3.addGeometry(Part.LineSegment(App.Vector(1.35, -1.19, 0), App.Vector(1.35, -1.25, 0)), False)
sketch3.addGeometry(Part.LineSegment(App.Vector(1.35, -1.25, 0), App.Vector(1.45, -1.25, 0)), False)
sketch3.addGeometry(Part.ArcOfCircle(Part.Circle(App.Vector(1.6, -1.25, 0), App.Vector(0, 0, 1), 0.15), math.radians(90), math.radians(180)), False)
sketch3.addGeometry(Part.LineSegment(App.Vector(1.6, -1.1, 0), App.Vector(1.6, -1, 0)), False)
sketch3.addGeometry(Part.LineSegment(App.Vector(1.6, -1, 0), App.Vector(1.54, -1, 0)), False)
sketch3.addGeometry(Part.LineSegment(App.Vector(1.54, -1, 0), App.Vector(1.54, -0.35, 0)), False)
sketch3.addGeometry(Part.LineSegment(App.Vector(1.54, -0.35, 0), App.Vector(0.94, -0.35, 0)), False)
sketch3.addGeometry(Part.LineSegment(App.Vector(0.94, -0.35, 0), App.Vector(0.94, -1.19, 0)), False)
sketch3.addGeometry(Part.LineSegment(App.Vector(0.94, -1.19, 0), App.Vector(1.35, -1.19, 0)), False)
sketch3.addConstraint(Sketcher.Constraint("Coincident", 0, 1, 1, 1))
sketch3.addConstraint(Sketcher.Constraint("Coincident", 1, 2, 2, 1))
sketch3.addConstraint(Sketcher.Constraint("Coincident", 2, 2, 3, 1))
sketch3.addConstraint(Sketcher.Constraint("Coincident", 3, 2, 4, 1))
sketch3.addConstraint(Sketcher.Constraint("Coincident", 4, 2, 5, 1))
sketch3.addConstraint(Sketcher.Constraint("Coincident", 5, 2, 6, 1))
sketch3.addConstraint(Sketcher.Constraint("Coincident", 6, 2, 7, 1))
sketch3.addConstraint(Sketcher.Constraint("Coincident", 7, 2, 8, 1))
sketch3.addConstraint(Sketcher.Constraint("Coincident", 8, 2, 0, 2))
sketch3.addConstraint(Sketcher.Constraint("Coincident", 9, 2, 10, 1))
sketch3.addConstraint(Sketcher.Constraint("Coincident", 10, 2, 11, 2))
sketch3.addConstraint(Sketcher.Constraint("Coincident", 11, 1, 12, 1))
sketch3.addConstraint(Sketcher.Constraint("Coincident", 12, 2, 13, 1))
sketch3.addConstraint(Sketcher.Constraint("Coincident", 13, 2, 14, 1))
sketch3.addConstraint(Sketcher.Constraint("Coincident", 14, 2, 15, 1))
sketch3.addConstraint(Sketcher.Constraint("Coincident", 15, 2, 16, 1))
sketch3.addConstraint(Sketcher.Constraint("Coincident", 16, 2, 17, 1))
sketch3.addConstraint(Sketcher.Constraint("Coincident", 17, 2, 9, 1))
sketch3.addConstraint(Sketcher.Constraint("Coincident", 18, 2, 19, 1))
sketch3.addConstraint(Sketcher.Constraint("Coincident", 19, 2, 20, 1))
sketch3.addConstraint(Sketcher.Constraint("Coincident", 20, 2, 21, 1))
sketch3.addConstraint(Sketcher.Constraint("Coincident", 21, 2, 22, 1))
sketch3.addConstraint(Sketcher.Constraint("Coincident", 22, 2, 23, 1))
sketch3.addConstraint(Sketcher.Constraint("Coincident", 23, 2, 24, 1))
sketch3.addConstraint(Sketcher.Constraint("Coincident", 24, 2, 25, 1))
sketch3.addConstraint(Sketcher.Constraint("Coincident", 25, 2, 26, 2))
sketch3.addConstraint(Sketcher.Constraint("Coincident", 26, 1, 18, 1))
sketch3.addConstraint(Sketcher.Constraint("Coincident", 27, 2, 28, 1))
sketch3.addConstraint(Sketcher.Constraint("Coincident", 28, 2, 29, 2))
sketch3.addConstraint(Sketcher.Constraint("Coincident", 29, 1, 30, 1))
sketch3.addConstraint(Sketcher.Constraint("Coincident", 30, 2, 31, 1))
sketch3.addConstraint(Sketcher.Constraint("Coincident", 31, 2, 32, 1))
sketch3.addConstraint(Sketcher.Constraint("Coincident", 32, 2, 33, 1))
sketch3.addConstraint(Sketcher.Constraint("Coincident", 33, 2, 34, 1))
sketch3.addConstraint(Sketcher.Constraint("Coincident", 34, 2, 35, 1))
sketch3.addConstraint(Sketcher.Constraint("Coincident", 35, 2, 27, 1))
sketch3.addConstraint(Sketcher.Constraint("Vertical", 1))
sketch3.addConstraint(Sketcher.Constraint("Horizontal", 2))
sketch3.addConstraint(Sketcher.Constraint("Vertical", 3))
sketch3.addConstraint(Sketcher.Constraint("Horizontal", 4))
sketch3.addConstraint(Sketcher.Constraint("Vertical", 5))
sketch3.addConstraint(Sketcher.Constraint("Horizontal", 6))
sketch3.addConstraint(Sketcher.Constraint("Vertical", 7))
sketch3.addConstraint(Sketcher.Constraint("Horizontal", 8))
sketch3.addConstraint(Sketcher.Constraint("Horizontal", 9))
sketch3.addConstraint(Sketcher.Constraint("Vertical", 10))
sketch3.addConstraint(Sketcher.Constraint("Horizontal", 12))
sketch3.addConstraint(Sketcher.Constraint("Vertical", 13))
sketch3.addConstraint(Sketcher.Constraint("Horizontal", 14))
sketch3.addConstraint(Sketcher.Constraint("Vertical", 15))
sketch3.addConstraint(Sketcher.Constraint("Horizontal", 16))
sketch3.addConstraint(Sketcher.Constraint("Vertical", 17))
sketch3.addConstraint(Sketcher.Constraint("Horizontal", 18))
sketch3.addConstraint(Sketcher.Constraint("Vertical", 19))
sketch3.addConstraint(Sketcher.Constraint("Horizontal", 20))
sketch3.addConstraint(Sketcher.Constraint("Vertical", 21))
sketch3.addConstraint(Sketcher.Constraint("Horizontal", 22))
sketch3.addConstraint(Sketcher.Constraint("Vertical", 23))
sketch3.addConstraint(Sketcher.Constraint("Horizontal", 24))
sketch3.addConstraint(Sketcher.Constraint("Vertical", 25))
sketch3.addConstraint(Sketcher.Constraint("Vertical", 27))
sketch3.addConstraint(Sketcher.Constraint("Horizontal", 28))
sketch3.addConstraint(Sketcher.Constraint("Vertical", 30))
sketch3.addConstraint(Sketcher.Constraint("Horizontal", 31))
sketch3.addConstraint(Sketcher.Constraint("Vertical", 32))
sketch3.addConstraint(Sketcher.Constraint("Horizontal", 33))
sketch3.addConstraint(Sketcher.Constraint("Vertical", 34))
sketch3.addConstraint(Sketcher.Constraint("Horizontal", 35))
sketch3.addConstraint(Sketcher.Constraint("Equal", 0, 11))
sketch3.addConstraint(Sketcher.Constraint("Equal", 11, 26))
sketch3.addConstraint(Sketcher.Constraint("Equal", 26, 29))
sketch3.addConstraint(Sketcher.Constraint("Symmetric", 11, 3, 26, 3, -1, 1))
sketch3.addConstraint(Sketcher.Constraint("Symmetric", 0, 3, 29, 3, -1, 1))
sketch3.addConstraint(Sketcher.Constraint("Symmetric", 12, 2, 18, 2, -1, 1))
sketch3.addConstraint(Sketcher.Constraint("Symmetric", 14, 2, 20, 2, -1, 1))
sketch3.addConstraint(Sketcher.Constraint("Symmetric", 16, 2, 22, 2, -1, 1))
sketch3.addConstraint(Sketcher.Constraint("Symmetric", 9, 2, 24, 2, -1, 1))
sketch3.addConstraint(Sketcher.Constraint("Symmetric", 7, 2, 27, 2, -1, 1))
sketch3.addConstraint(Sketcher.Constraint("Symmetric", 1, 2, 30, 2, -1, 1))
sketch3.addConstraint(Sketcher.Constraint("Symmetric", 3, 2, 32, 2, -1, 1))
sketch3.addConstraint(Sketcher.Constraint("Symmetric", 5, 2, 34, 2, -1, 1))
sketch3.addConstraint(Sketcher.Constraint("Symmetric", 0, 3, 26, 3, -2))
sketch3.addConstraint(Sketcher.Constraint("Symmetric", 7, 2, 18, 2, -2))
sketch3.addConstraint(Sketcher.Constraint("Symmetric", 5, 2, 20, 2, -2))
sketch3.addConstraint(Sketcher.Constraint("Symmetric", 3, 2, 22, 2, -2))
sketch3.addConstraint(Sketcher.Constraint("Symmetric", 1, 2, 24, 2, -2))
sketch3.addConstraint(Sketcher.Constraint("Horizontal", 26, 3, 7, 2))
sketch3.addConstraint(Sketcher.Constraint("Vertical", 11, 3, 0, 1))
sketch3.addConstraint(Sketcher.Constraint("Equal", 28, 1))
sketch3.addConstraint(Sketcher.Constraint("Equal", 31, 7))
sketch3.addConstraint(Sketcher.Constraint("DistanceX", 4, 1, 4, 2, 0.6))
sketch3.addConstraint(Sketcher.Constraint("DistanceY", 5, 1, 5, 2, 0.84))
sketch3.addConstraint(Sketcher.Constraint("Radius", 0, 0.15))
sketch3.addConstraint(Sketcher.Constraint("DistanceY", 1, 2, 0, 3, 0.25))
sketch3.addConstraint(Sketcher.Constraint("DistanceX", 5, 2, 20, 2, 1.88))
sketch3.addConstraint(Sketcher.Constraint("DistanceY", -1, 1, 1, 2, 1.0))
sketch3.addConstraint(Sketcher.Constraint("DistanceX", 2, 1, 2, 2, 0.06))
pad3 = doc.addObject("PartDesign::Pad", "Pad002")
body.addObject(pad3)
pad3.Profile = sketch3
pad3.Length = 0.05

doc.recompute()
